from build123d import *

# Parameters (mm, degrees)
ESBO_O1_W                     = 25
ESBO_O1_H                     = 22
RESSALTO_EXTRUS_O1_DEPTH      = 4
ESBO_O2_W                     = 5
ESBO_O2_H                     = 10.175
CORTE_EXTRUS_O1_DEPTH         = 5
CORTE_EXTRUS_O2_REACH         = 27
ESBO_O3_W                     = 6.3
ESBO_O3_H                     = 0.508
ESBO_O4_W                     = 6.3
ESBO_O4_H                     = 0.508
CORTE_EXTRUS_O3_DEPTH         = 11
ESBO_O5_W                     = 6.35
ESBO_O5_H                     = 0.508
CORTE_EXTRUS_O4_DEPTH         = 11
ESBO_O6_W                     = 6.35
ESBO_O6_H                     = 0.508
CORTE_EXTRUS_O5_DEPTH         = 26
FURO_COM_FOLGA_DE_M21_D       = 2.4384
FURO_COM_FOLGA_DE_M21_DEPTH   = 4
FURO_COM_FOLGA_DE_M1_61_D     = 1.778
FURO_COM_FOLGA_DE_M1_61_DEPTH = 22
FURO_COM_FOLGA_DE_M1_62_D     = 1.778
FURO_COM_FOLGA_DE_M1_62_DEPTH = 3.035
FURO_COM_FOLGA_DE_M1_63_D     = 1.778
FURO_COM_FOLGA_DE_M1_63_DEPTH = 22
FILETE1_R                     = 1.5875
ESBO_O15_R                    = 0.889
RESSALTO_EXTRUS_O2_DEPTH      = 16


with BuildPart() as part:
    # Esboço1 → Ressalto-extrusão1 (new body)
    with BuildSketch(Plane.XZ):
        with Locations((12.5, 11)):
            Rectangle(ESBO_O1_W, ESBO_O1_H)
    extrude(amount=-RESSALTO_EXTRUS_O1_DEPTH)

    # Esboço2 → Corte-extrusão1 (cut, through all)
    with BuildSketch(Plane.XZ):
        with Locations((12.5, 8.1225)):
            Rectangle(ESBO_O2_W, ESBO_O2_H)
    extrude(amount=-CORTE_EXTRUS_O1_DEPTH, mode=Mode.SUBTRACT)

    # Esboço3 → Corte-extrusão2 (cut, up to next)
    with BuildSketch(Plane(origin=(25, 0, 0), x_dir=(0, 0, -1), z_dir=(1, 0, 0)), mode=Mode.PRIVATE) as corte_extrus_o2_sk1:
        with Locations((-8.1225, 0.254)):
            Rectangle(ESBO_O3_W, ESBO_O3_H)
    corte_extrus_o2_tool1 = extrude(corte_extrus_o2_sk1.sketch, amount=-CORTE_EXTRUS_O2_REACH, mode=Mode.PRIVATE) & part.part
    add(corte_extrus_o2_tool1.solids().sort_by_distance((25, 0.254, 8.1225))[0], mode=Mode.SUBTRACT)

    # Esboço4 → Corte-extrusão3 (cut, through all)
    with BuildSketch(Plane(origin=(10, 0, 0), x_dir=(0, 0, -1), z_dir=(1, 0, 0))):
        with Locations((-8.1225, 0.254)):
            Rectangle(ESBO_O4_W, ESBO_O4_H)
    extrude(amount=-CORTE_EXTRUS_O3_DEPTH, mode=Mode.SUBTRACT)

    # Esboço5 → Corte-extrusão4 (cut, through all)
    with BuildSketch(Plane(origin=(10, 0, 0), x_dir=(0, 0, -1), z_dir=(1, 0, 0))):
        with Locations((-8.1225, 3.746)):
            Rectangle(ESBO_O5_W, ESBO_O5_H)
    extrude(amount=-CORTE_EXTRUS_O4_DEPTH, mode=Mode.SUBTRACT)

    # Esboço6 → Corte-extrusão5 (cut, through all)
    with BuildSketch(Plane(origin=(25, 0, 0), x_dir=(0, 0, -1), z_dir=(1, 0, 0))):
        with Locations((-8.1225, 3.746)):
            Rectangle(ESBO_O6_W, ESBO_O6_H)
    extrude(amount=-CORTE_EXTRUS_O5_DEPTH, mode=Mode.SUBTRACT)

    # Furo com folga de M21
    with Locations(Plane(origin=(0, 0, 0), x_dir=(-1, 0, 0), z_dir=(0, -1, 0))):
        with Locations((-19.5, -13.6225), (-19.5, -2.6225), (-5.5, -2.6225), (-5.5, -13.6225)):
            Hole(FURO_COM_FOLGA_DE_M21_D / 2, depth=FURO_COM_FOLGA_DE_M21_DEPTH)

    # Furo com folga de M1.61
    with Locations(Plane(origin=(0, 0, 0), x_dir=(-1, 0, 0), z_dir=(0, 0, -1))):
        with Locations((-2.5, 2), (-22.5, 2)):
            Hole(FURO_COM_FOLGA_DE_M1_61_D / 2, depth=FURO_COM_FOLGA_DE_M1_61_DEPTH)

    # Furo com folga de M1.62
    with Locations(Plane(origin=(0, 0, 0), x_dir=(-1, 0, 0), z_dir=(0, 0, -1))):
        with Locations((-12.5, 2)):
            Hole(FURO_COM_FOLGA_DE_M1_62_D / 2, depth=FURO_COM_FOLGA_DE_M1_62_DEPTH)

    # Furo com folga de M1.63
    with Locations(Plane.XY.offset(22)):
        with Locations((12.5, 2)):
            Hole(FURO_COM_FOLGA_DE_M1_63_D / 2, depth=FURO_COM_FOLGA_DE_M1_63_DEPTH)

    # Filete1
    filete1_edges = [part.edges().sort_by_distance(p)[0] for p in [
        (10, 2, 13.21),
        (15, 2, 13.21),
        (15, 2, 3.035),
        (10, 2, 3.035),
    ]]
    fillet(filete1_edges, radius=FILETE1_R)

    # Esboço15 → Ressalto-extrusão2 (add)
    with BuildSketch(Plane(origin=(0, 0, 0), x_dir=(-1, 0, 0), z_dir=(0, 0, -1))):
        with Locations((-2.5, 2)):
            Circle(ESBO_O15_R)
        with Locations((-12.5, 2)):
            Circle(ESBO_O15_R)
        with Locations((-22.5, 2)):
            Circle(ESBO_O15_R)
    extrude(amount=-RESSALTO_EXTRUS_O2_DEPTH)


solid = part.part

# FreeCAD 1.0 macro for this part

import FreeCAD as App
import Part
import Sketcher
from FreeCAD import Vector


def edges_at(feature, points):
    """Names of the edges that pass closest to the given points."""
    edges = feature.Shape.Edges
    near = lambda p: min(range(len(edges)), key=lambda i: edges[i].distToShape(Part.Vertex(*p))[0])
    return sorted({f"Edge{near(p) + 1}" for p in points})

doc = App.newDocument("Part")
params = doc.addObject("Spreadsheet::Sheet", "Params")
for row, (alias, value) in enumerate([
    ("sketch1_width", "25 mm"),
    ("sketch1_height", "22 mm"),
    ("pad1_length", "4 mm"),
    ("sketch2_width", "5 mm"),
    ("sketch3_height", "6.3 mm"),
    ("sketch4_height", "6.3 mm"),
    ("sketch5_height", "6.35 mm"),
    ("sketch6_height", "6.35 mm"),
    ("hole_diameter", "2.4384 mm"),
    ("hole_depth", "4 mm"),
    ("hole2_diameter", "1.778 mm"),
    ("hole2_depth", "22 mm"),
    ("hole3_diameter", "1.778 mm"),
    ("hole3_depth", "3.035 mm"),
    ("hole4_diameter", "1.778 mm"),
    ("hole4_depth", "22 mm"),
    ("fillet_radius", "1.5875 mm"),
    ("pad2_length", "16 mm"),
], start=1):
    params.set(f"A{row}", alias)
    params.set(f"B{row}", "=" + value)
    params.setAlias(f"B{row}", alias)

body = doc.addObject("PartDesign::Body", "Body")

# Sketch on XZ plane
sketch1 = body.newObject("Sketcher::SketchObject", "Sketch")
sketch1.AttachmentSupport = (doc.getObject("XZ_Plane"), [""])
sketch1.MapMode = "FlatFace"
sketch1.addGeometry([
    Part.LineSegment(Vector(0, 22, 0), Vector(0, 0, 0)),
    Part.LineSegment(Vector(0, 0, 0), Vector(25, 0, 0)),
    Part.LineSegment(Vector(25, 0, 0), Vector(25, 22, 0)),
    Part.LineSegment(Vector(25, 22, 0), Vector(0, 22, 0)),
], False)
sketch1.addConstraint([
    Sketcher.Constraint("Coincident", 0, 2, 1, 1),
    Sketcher.Constraint("Coincident", 1, 2, 2, 1),
    Sketcher.Constraint("Coincident", 2, 2, 3, 1),
    Sketcher.Constraint("Coincident", 3, 2, 0, 1),
    Sketcher.Constraint("Vertical", 0),
    Sketcher.Constraint("Horizontal", 1),
    Sketcher.Constraint("Vertical", 2),
    Sketcher.Constraint("Horizontal", 3),
    Sketcher.Constraint("Coincident", 0, 2, -1, 1),
    Sketcher.Constraint("DistanceX", 1, 1, 1, 2, 25.0),
    Sketcher.Constraint("DistanceY", 0, 2, 0, 1, 22.0),
])
sketch1.setExpression("Constraints[9]", "Params.sketch1_width")
sketch1.setExpression("Constraints[10]", "Params.sketch1_height")
pad1 = body.newObject("PartDesign::Pad", "Pad")
pad1.Profile = sketch1
pad1.setExpression("Length", "Params.pad1_length")
pad1.Reversed = True

# Sketch on XZ plane
sketch2 = body.newObject("Sketcher::SketchObject", "Sketch001")
sketch2.AttachmentSupport = (doc.getObject("XZ_Plane"), [""])
sketch2.MapMode = "FlatFace"
sketch2.addGeometry([
    Part.LineSegment(Vector(10, 13, 0), Vector(10, 3, 0)),
    Part.LineSegment(Vector(10, 3, 0), Vector(15, 3, 0)),
    Part.LineSegment(Vector(15, 3, 0), Vector(15, 13, 0)),
    Part.LineSegment(Vector(15, 13, 0), Vector(10, 13, 0)),
], False)
sketch2.addConstraint([
    Sketcher.Constraint("Coincident", 0, 2, 1, 1),
    Sketcher.Constraint("Coincident", 1, 2, 2, 1),
    Sketcher.Constraint("Coincident", 2, 2, 3, 1),
    Sketcher.Constraint("Coincident", 3, 2, 0, 1),
    Sketcher.Constraint("Vertical", 0),
    Sketcher.Constraint("Horizontal", 1),
    Sketcher.Constraint("Vertical", 2),
    Sketcher.Constraint("Horizontal", 3),
    Sketcher.Constraint("DistanceX", 1, 1, 1, 2, 5.0),
    Sketcher.Constraint("DistanceX", -1, 1, 0, 2, 10.0),
    Sketcher.Constraint("DistanceY", 0, 2, 0, 1, 10.175),
    Sketcher.Constraint("DistanceY", -1, 1, 2, 2, 13.21),
])
sketch2.setExpression("Constraints[8]", "Params.sketch2_width")
pocket1 = body.newObject("PartDesign::Pocket", "Pocket")
pocket1.Profile = sketch2
pocket1.Type = "ThroughAll"

# Sketch on YZ plane
sketch3 = body.newObject("Sketcher::SketchObject", "Sketch002")
sketch3.AttachmentSupport = (doc.getObject("YZ_Plane"), [""])
sketch3.MapMode = "FlatFace"
sketch3.AttachmentOffset = App.Placement(Vector(0, 0, 25), App.Rotation())
sketch3.addGeometry([
    Part.LineSegment(Vector(0.5, 11.3, 0), Vector(0, 11.3, 0)),
    Part.LineSegment(Vector(0, 11.3, 0), Vector(0, 5, 0)),
    Part.LineSegment(Vector(0, 5, 0), Vector(0.5, 5, 0)),
    Part.LineSegment(Vector(0.5, 5, 0), Vector(0.5, 11.3, 0)),
], False)
sketch3.addConstraint([
    Sketcher.Constraint("Coincident", 0, 2, 1, 1),
    Sketcher.Constraint("Coincident", 1, 2, 2, 1),
    Sketcher.Constraint("Coincident", 2, 2, 3, 1),
    Sketcher.Constraint("Coincident", 3, 2, 0, 1),
    Sketcher.Constraint("Horizontal", 0),
    Sketcher.Constraint("Vertical", 1),
    Sketcher.Constraint("Horizontal", 2),
    Sketcher.Constraint("Vertical", 3),
    Sketcher.Constraint("PointOnObject", 0, 2, -2),
    Sketcher.Constraint("DistanceY", 1, 2, 1, 1, 6.3),
    Sketcher.Constraint("DistanceX", 0, 2, 0, 1, 0.508),
    Sketcher.Constraint("DistanceY", -1, 1, 0, 2, 11.2725),
])
sketch3.setExpression("Constraints[9]", "Params.sketch3_height")
pocket2 = body.newObject("PartDesign::Pocket", "Pocket001")
pocket2.Profile = sketch3
pocket2.Type = "UpToFirst"

# Sketch on YZ plane
sketch4 = body.newObject("Sketcher::SketchObject", "Sketch003")
sketch4.AttachmentSupport = (doc.getObject("YZ_Plane"), [""])
sketch4.MapMode = "FlatFace"
sketch4.AttachmentOffset = App.Placement(Vector(0, 0, 10), App.Rotation())
sketch4.addGeometry([
    Part.LineSegment(Vector(0.5, 11.3, 0), Vector(0, 11.3, 0)),
    Part.LineSegment(Vector(0, 11.3, 0), Vector(0, 5, 0)),
    Part.LineSegment(Vector(0, 5, 0), Vector(0.5, 5, 0)),
    Part.LineSegment(Vector(0.5, 5, 0), Vector(0.5, 11.3, 0)),
], False)
sketch4.addConstraint([
    Sketcher.Constraint("Coincident", 0, 2, 1, 1),
    Sketcher.Constraint("Coincident", 1, 2, 2, 1),
    Sketcher.Constraint("Coincident", 2, 2, 3, 1),
    Sketcher.Constraint("Coincident", 3, 2, 0, 1),
    Sketcher.Constraint("Horizontal", 0),
    Sketcher.Constraint("Vertical", 1),
    Sketcher.Constraint("Horizontal", 2),
    Sketcher.Constraint("Vertical", 3),
    Sketcher.Constraint("PointOnObject", 0, 2, -2),
    Sketcher.Constraint("DistanceY", 1, 2, 1, 1, 6.3),
    Sketcher.Constraint("DistanceX", 0, 2, 0, 1, 0.508),
    Sketcher.Constraint("DistanceY", -1, 1, 0, 2, 11.2725),
])
sketch4.setExpression("Constraints[9]", "Params.sketch4_height")
pocket3 = body.newObject("PartDesign::Pocket", "Pocket002")
pocket3.Profile = sketch4
pocket3.Type = "ThroughAll"

# Sketch on YZ plane
sketch5 = body.newObject("Sketcher::SketchObject", "Sketch004")
sketch5.AttachmentSupport = (doc.getObject("YZ_Plane"), [""])
sketch5.MapMode = "FlatFace"
sketch5.AttachmentOffset = App.Placement(Vector(0, 0, 10), App.Rotation())
sketch5.addGeometry([
    Part.LineSegment(Vector(4, 11.3, 0), Vector(3.5, 11.3, 0)),
    Part.LineSegment(Vector(3.5, 11.3, 0), Vector(3.5, 4.9, 0)),
    Part.LineSegment(Vector(3.5, 4.9, 0), Vector(4, 4.9, 0)),
    Part.LineSegment(Vector(4, 4.9, 0), Vector(4, 11.3, 0)),
], False)
sketch5.addConstraint([
    Sketcher.Constraint("Coincident", 0, 2, 1, 1),
    Sketcher.Constraint("Coincident", 1, 2, 2, 1),
    Sketcher.Constraint("Coincident", 2, 2, 3, 1),
    Sketcher.Constraint("Coincident", 3, 2, 0, 1),
    Sketcher.Constraint("Horizontal", 0),
    Sketcher.Constraint("Vertical", 1),
    Sketcher.Constraint("Horizontal", 2),
    Sketcher.Constraint("Vertical", 3),
    Sketcher.Constraint("DistanceX", -1, 1, 2, 2, 4.0),
    Sketcher.Constraint("DistanceY", 1, 2, 1, 1, 6.35),
    Sketcher.Constraint("DistanceX", 0, 2, 0, 1, 0.508),
    Sketcher.Constraint("DistanceY", -1, 1, 0, 2, 11.2975),
])
sketch5.setExpression("Constraints[9]", "Params.sketch5_height")
pocket4 = body.newObject("PartDesign::Pocket", "Pocket003")
pocket4.Profile = sketch5
pocket4.Type = "ThroughAll"

# Sketch on YZ plane
sketch6 = body.newObject("Sketcher::SketchObject", "Sketch005")
sketch6.AttachmentSupport = (doc.getObject("YZ_Plane"), [""])
sketch6.MapMode = "FlatFace"
sketch6.AttachmentOffset = App.Placement(Vector(0, 0, 25), App.Rotation())
sketch6.addGeometry([
    Part.LineSegment(Vector(4, 11.3, 0), Vector(3.5, 11.3, 0)),
    Part.LineSegment(Vector(3.5, 11.3, 0), Vector(3.5, 4.9, 0)),
    Part.LineSegment(Vector(3.5, 4.9, 0), Vector(4, 4.9, 0)),
    Part.LineSegment(Vector(4, 4.9, 0), Vector(4, 11.3, 0)),
], False)
sketch6.addConstraint([
    Sketcher.Constraint("Coincident", 0, 2, 1, 1),
    Sketcher.Constraint("Coincident", 1, 2, 2, 1),
    Sketcher.Constraint("Coincident", 2, 2, 3, 1),
    Sketcher.Constraint("Coincident", 3, 2, 0, 1),
    Sketcher.Constraint("Horizontal", 0),
    Sketcher.Constraint("Vertical", 1),
    Sketcher.Constraint("Horizontal", 2),
    Sketcher.Constraint("Vertical", 3),
    Sketcher.Constraint("DistanceX", -1, 1, 2, 2, 4.0),
    Sketcher.Constraint("DistanceY", 1, 2, 1, 1, 6.35),
    Sketcher.Constraint("DistanceX", 0, 2, 0, 1, 0.508),
    Sketcher.Constraint("DistanceY", -1, 1, 0, 2, 11.2975),
])
sketch6.setExpression("Constraints[9]", "Params.sketch6_height")
pocket5 = body.newObject("PartDesign::Pocket", "Pocket004")
pocket5.Profile = sketch6
pocket5.Type = "ThroughAll"

# Sketch on XZ plane
sketch7 = body.newObject("Sketcher::SketchObject", "Sketch006")
sketch7.AttachmentSupport = (doc.getObject("XZ_Plane"), [""])
sketch7.MapMode = "FlatFace"
sketch7.addGeometry([
    Part.Circle(Vector(19.5, 13.6, 0), Vector(0, 0, 1), 1.2),
    Part.Circle(Vector(19.5, 2.6, 0), Vector(0, 0, 1), 1.2),
    Part.Circle(Vector(5.5, 2.6, 0), Vector(0, 0, 1), 1.2),
    Part.Circle(Vector(5.5, 13.6, 0), Vector(0, 0, 1), 1.2),
], False)
sketch7.addConstraint([
    Sketcher.Constraint("Equal", 0, 1),
    Sketcher.Constraint("Equal", 1, 2),
    Sketcher.Constraint("Equal", 2, 3),
    Sketcher.Constraint("Horizontal", 1, 3, 2, 3),
    Sketcher.Constraint("Horizontal", 0, 3, 3, 3),
    Sketcher.Constraint("Vertical", 0, 3, 1, 3),
    Sketcher.Constraint("Vertical", 2, 3, 3, 3),
    Sketcher.Constraint("DistanceY", 1, 3, 0, 3, 11.0),
    Sketcher.Constraint("DistanceX", 2, 3, 1, 3, 14.0),
    Sketcher.Constraint("Diameter", 0, 2.4384),
    Sketcher.Constraint("DistanceX", -1, 1, 0, 3, 19.5),
    Sketcher.Constraint("DistanceY", -1, 1, 0, 3, 13.6225),
])
doc.recompute()
hole = body.newObject("PartDesign::Hole", "Hole")
hole.Profile = sketch7
hole.ThreadType = "None"
hole.setExpression("Diameter", "Params.hole_diameter")
hole.DepthType = "Dimension"
hole.setExpression("Depth", "Params.hole_depth")
hole.DrillPoint = "Flat"

# Sketch on XY plane
sketch8 = body.newObject("Sketcher::SketchObject", "Sketch007")
sketch8.AttachmentSupport = (doc.getObject("XY_Plane"), [""])
sketch8.MapMode = "FlatFace"
sketch8.addGeometry([
    Part.Circle(Vector(2.5, 2, 0), Vector(0, 0, 1), 0.9),
    Part.Circle(Vector(22.5, 2, 0), Vector(0, 0, 1), 0.9),
], False)
sketch8.addConstraint([
    Sketcher.Constraint("Equal", 0, 1),
    Sketcher.Constraint("Horizontal", 0, 3, 1, 3),
    Sketcher.Constraint("Diameter", 0, 1.778),
    Sketcher.Constraint("DistanceY", -1, 1, 0, 3, 2.0),
    Sketcher.Constraint("DistanceX", 0, 3, 1, 3, 20.0),
    Sketcher.Constraint("DistanceX", -1, 1, 0, 3, 2.5),
])
doc.recompute()
hole2 = body.newObject("PartDesign::Hole", "Hole001")
hole2.Profile = sketch8
hole2.ThreadType = "None"
hole2.setExpression("Diameter", "Params.hole2_diameter")
hole2.DepthType = "Dimension"
hole2.setExpression("Depth", "Params.hole2_depth")
hole2.DrillPoint = "Flat"
hole2.Reversed = True

# Sketch on XY plane
sketch9 = body.newObject("Sketcher::SketchObject", "Sketch008")
sketch9.AttachmentSupport = (doc.getObject("XY_Plane"), [""])
sketch9.MapMode = "FlatFace"
sketch9.addGeometry(Part.Circle(Vector(12.5, 2, 0), Vector(0, 0, 1), 0.9), False)
sketch9.addConstraint([
    Sketcher.Constraint("Diameter", 0, 1.778),
    Sketcher.Constraint("DistanceY", -1, 1, 0, 3, 2.0),
    Sketcher.Constraint("DistanceX", -1, 1, 0, 3, 12.5),
])
doc.recompute()
hole3 = body.newObject("PartDesign::Hole", "Hole002")
hole3.Profile = sketch9
hole3.ThreadType = "None"
hole3.setExpression("Diameter", "Params.hole3_diameter")
hole3.DepthType = "Dimension"
hole3.setExpression("Depth", "Params.hole3_depth")
hole3.DrillPoint = "Flat"
hole3.Reversed = True

# Sketch on XY plane
sketch10 = body.newObject("Sketcher::SketchObject", "Sketch009")
sketch10.AttachmentSupport = (doc.getObject("XY_Plane"), [""])
sketch10.MapMode = "FlatFace"
sketch10.AttachmentOffset = App.Placement(Vector(0, 0, 22), App.Rotation())
sketch10.addGeometry(Part.Circle(Vector(12.5, 2, 0), Vector(0, 0, 1), 0.9), False)
sketch10.addConstraint([
    Sketcher.Constraint("Diameter", 0, 1.778),
    Sketcher.Constraint("DistanceY", -1, 1, 0, 3, 2.0),
    Sketcher.Constraint("DistanceX", -1, 1, 0, 3, 12.5),
])
doc.recompute()
hole4 = body.newObject("PartDesign::Hole", "Hole003")
hole4.Profile = sketch10
hole4.ThreadType = "None"
hole4.setExpression("Diameter", "Params.hole4_diameter")
hole4.DepthType = "Dimension"
hole4.setExpression("Depth", "Params.hole4_depth")
hole4.DrillPoint = "Flat"
doc.recompute()

fillet = body.newObject("PartDesign::Fillet", "Fillet")
fillet.Base = (hole4, edges_at(hole4, [
    (10, 2, 13.21),
    (15, 2, 13.21),
    (15, 2, 3.035),
    (10, 2, 3.035),
]))
fillet.setExpression("Radius", "Params.fillet_radius")

# Sketch on XY plane
sketch11 = body.newObject("Sketcher::SketchObject", "Sketch010")
sketch11.AttachmentSupport = (doc.getObject("XY_Plane"), [""])
sketch11.MapMode = "FlatFace"
sketch11.addGeometry([
    Part.Circle(Vector(2.5, 2, 0), Vector(0, 0, 1), 0.9),
    Part.Circle(Vector(12.5, 2, 0), Vector(0, 0, 1), 0.9),
    Part.Circle(Vector(22.5, 2, 0), Vector(0, 0, 1), 0.9),
], False)
sketch11.addConstraint([
    Sketcher.Constraint("Equal", 0, 1),
    Sketcher.Constraint("Equal", 1, 2),
    Sketcher.Constraint("Horizontal", 0, 3, 1, 3),
    Sketcher.Constraint("Horizontal", 1, 3, 2, 3),
    Sketcher.Constraint("Diameter", 0, 1.778),
    Sketcher.Constraint("DistanceY", -1, 1, 0, 3, 2.0),
    Sketcher.Constraint("DistanceX", 0, 3, 1, 3, 10.0),
    Sketcher.Constraint("DistanceX", 1, 3, 2, 3, 10.0),
    Sketcher.Constraint("DistanceX", -1, 1, 0, 3, 2.5),
])
pad2 = body.newObject("PartDesign::Pad", "Pad001")
pad2.Profile = sketch11
pad2.setExpression("Length", "Params.pad2_length")

doc.recompute()
